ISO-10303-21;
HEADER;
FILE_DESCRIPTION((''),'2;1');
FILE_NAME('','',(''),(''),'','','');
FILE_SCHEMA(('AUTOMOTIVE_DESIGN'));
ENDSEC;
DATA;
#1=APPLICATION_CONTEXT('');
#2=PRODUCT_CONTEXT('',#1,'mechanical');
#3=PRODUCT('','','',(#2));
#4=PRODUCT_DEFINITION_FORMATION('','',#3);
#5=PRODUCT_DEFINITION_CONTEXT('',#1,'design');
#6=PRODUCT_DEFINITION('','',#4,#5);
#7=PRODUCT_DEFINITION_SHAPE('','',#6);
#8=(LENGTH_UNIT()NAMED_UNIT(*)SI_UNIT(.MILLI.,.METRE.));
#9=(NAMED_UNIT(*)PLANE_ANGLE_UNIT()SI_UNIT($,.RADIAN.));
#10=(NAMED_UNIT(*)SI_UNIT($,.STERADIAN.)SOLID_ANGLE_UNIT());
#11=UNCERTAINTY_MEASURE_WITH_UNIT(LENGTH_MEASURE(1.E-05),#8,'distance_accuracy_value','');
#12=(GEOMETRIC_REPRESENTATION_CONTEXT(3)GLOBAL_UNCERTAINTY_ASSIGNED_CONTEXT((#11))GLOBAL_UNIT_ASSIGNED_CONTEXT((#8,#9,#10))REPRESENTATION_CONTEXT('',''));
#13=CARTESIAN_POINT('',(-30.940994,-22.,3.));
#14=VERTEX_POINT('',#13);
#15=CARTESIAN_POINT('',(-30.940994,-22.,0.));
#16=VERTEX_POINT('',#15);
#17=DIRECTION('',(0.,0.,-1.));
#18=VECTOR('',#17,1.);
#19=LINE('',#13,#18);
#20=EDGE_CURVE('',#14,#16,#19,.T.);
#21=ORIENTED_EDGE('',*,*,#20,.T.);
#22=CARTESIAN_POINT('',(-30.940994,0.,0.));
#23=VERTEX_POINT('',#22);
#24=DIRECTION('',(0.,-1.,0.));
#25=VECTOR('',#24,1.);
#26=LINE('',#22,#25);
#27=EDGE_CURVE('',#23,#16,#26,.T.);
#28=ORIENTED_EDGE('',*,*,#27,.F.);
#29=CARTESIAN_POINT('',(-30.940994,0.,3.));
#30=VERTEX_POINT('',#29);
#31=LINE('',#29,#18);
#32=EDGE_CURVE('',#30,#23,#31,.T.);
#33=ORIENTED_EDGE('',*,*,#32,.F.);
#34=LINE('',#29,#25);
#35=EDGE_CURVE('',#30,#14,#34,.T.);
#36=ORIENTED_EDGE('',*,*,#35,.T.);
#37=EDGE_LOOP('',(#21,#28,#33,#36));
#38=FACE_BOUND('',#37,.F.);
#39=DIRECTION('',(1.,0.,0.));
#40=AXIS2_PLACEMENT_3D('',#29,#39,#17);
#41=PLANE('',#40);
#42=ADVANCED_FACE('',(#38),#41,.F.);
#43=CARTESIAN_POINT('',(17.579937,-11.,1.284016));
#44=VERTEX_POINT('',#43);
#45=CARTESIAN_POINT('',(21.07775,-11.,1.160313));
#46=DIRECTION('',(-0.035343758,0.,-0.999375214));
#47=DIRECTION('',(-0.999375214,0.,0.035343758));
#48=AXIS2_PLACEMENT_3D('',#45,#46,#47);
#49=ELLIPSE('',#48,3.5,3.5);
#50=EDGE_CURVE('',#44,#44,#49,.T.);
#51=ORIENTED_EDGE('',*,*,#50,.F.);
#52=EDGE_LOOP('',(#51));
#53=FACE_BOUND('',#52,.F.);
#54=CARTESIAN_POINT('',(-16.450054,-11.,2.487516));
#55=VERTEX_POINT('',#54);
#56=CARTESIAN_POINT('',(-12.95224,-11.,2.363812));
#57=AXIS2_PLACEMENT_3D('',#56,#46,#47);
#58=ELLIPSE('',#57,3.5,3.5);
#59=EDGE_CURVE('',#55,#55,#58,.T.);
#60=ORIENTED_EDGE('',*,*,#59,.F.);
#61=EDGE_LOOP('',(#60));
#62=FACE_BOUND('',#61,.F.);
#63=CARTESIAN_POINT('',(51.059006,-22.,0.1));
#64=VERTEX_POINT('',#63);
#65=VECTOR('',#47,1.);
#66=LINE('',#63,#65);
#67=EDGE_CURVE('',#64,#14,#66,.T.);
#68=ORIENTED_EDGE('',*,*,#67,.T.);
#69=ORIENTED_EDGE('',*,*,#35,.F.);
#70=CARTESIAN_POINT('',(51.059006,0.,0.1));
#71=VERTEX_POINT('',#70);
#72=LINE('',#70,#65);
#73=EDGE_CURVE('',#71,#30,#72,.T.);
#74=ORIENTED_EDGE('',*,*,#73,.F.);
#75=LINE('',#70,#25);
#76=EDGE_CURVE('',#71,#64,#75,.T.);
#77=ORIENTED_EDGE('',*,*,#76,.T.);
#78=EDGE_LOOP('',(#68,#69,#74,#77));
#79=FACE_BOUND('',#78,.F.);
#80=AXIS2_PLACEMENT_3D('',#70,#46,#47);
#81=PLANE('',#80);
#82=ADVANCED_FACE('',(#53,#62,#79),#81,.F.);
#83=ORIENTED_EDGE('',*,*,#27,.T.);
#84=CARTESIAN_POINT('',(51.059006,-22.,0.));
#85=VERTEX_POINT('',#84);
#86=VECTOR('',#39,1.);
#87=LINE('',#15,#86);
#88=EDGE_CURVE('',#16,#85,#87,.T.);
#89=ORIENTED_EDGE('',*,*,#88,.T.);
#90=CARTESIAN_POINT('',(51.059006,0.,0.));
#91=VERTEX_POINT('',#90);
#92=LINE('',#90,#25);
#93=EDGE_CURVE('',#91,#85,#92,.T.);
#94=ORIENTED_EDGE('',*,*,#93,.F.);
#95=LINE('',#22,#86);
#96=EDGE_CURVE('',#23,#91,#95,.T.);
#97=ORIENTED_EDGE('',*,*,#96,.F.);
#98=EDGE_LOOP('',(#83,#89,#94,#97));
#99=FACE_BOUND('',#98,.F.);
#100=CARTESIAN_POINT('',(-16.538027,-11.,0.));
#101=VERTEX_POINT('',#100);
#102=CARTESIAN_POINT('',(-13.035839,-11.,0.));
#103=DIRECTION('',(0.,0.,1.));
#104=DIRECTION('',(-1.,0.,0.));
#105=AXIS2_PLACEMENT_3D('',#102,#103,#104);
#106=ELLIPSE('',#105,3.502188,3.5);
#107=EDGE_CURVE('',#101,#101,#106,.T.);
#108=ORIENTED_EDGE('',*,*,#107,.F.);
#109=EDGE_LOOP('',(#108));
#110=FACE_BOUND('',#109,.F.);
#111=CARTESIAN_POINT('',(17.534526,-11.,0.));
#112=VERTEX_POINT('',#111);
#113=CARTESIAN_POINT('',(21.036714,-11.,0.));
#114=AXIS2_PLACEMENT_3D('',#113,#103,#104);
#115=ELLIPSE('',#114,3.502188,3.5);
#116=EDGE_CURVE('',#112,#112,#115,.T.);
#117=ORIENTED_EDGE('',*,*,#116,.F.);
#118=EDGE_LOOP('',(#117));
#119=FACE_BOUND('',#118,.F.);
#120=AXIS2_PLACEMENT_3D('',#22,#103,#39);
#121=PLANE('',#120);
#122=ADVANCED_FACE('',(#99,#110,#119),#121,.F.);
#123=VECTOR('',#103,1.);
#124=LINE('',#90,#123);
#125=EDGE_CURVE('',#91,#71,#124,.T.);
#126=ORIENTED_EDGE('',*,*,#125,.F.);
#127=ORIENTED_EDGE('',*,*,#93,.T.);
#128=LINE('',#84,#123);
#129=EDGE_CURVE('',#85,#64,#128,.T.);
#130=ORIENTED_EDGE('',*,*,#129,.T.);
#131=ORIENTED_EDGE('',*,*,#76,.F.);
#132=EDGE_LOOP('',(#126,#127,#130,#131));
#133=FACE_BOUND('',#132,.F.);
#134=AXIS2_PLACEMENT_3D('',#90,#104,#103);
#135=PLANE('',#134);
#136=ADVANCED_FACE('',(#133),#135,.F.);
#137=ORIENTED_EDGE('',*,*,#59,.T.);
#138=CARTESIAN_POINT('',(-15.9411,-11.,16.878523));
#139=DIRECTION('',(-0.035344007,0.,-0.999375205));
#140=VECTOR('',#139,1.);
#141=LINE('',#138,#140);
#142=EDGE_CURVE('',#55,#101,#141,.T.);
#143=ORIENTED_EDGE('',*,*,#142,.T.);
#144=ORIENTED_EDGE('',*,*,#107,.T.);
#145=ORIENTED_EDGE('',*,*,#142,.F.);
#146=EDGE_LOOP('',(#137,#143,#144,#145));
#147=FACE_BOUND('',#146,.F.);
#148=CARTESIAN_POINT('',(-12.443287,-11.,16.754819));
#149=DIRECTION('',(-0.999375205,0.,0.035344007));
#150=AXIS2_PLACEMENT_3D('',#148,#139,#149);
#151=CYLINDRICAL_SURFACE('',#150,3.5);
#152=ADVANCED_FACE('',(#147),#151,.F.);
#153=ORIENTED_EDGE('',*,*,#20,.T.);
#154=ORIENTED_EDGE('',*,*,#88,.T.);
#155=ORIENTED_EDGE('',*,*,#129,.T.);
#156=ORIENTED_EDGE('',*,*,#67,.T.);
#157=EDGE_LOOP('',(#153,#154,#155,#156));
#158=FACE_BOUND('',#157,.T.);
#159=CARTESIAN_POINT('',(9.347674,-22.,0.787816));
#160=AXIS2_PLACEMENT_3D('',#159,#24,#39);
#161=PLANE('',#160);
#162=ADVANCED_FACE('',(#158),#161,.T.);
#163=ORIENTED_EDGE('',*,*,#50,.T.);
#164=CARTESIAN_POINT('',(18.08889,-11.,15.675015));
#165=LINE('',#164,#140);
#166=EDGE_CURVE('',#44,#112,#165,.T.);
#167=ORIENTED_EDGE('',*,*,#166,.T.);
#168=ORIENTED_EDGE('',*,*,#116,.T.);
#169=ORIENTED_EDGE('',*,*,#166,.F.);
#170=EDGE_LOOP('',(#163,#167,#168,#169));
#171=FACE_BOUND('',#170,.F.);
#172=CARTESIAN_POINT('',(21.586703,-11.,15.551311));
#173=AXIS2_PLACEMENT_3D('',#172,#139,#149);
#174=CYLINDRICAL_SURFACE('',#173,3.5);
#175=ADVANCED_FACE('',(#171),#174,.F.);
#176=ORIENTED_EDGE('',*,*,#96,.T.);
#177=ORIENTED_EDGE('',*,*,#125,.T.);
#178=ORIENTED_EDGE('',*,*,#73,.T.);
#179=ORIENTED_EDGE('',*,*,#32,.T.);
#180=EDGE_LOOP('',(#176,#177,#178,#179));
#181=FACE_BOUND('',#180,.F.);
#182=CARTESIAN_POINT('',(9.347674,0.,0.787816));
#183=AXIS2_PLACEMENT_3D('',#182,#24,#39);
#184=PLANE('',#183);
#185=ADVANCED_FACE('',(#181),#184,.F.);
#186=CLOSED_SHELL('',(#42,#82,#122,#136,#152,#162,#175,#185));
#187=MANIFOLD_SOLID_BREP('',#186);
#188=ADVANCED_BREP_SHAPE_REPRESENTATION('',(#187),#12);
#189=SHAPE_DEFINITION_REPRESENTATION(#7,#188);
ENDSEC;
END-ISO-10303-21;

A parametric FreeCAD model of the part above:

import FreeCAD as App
import Part
import Sketcher
from FreeCAD import Vector

doc = App.newDocument("Part")
params = doc.addObject("Spreadsheet::Sheet", "Params")
for row, (alias, value) in enumerate([
    ("sketch1_width", "82 mm"),
    ("sketch1_height", "3 mm"),
    ("sketch1_height2", "0.1 mm"),
    ("pad1_length", "22 mm"),
    ("sketch2_diameter", "7 mm"),
    ("hole_diameter", "7 mm"),
    ("hole_depth", "14.4 mm"),
], start=1):
    params.set(f"A{row}", alias)
    params.set(f"B{row}", "=" + value)
    params.setAlias(f"B{row}", alias)

body = doc.addObject("PartDesign::Body", "Body")

# Sketch on XZ plane
sketch1 = body.newObject("Sketcher::SketchObject", "Sketch")
sketch1.AttachmentSupport = (doc.getObject("XZ_Plane"), [""])
sketch1.MapMode = "FlatFace"
sketch1.addGeometry([
    Part.LineSegment(Vector(-30.94, 3, 0), Vector(-30.94, 0, 0)),
    Part.LineSegment(Vector(-30.94, 0, 0), Vector(51.06, 0, 0)),
    Part.LineSegment(Vector(51.06, 0, 0), Vector(51.06, 0.1, 0)),
    Part.LineSegment(Vector(51.06, 0.1, 0), Vector(-30.94, 3, 0)),
], False)
sketch1.addConstraint([
    Sketcher.Constraint("Coincident", 0, 2, 1, 1),
    Sketcher.Constraint("Coincident", 1, 2, 2, 1),
    Sketcher.Constraint("Coincident", 2, 2, 3, 1),
    Sketcher.Constraint("Coincident", 3, 2, 0, 1),
    Sketcher.Constraint("Vertical", 0),
    Sketcher.Constraint("Horizontal", 1),
    Sketcher.Constraint("Vertical", 2),
    Sketcher.Constraint("PointOnObject", 0, 2, -1),
    Sketcher.Constraint("DistanceX", 1, 1, 1, 2, 82.0),
    Sketcher.Constraint("DistanceY", 0, 2, 0, 1, 3.0),
    Sketcher.Constraint("DistanceY", 2, 1, 2, 2, 0.1),
    Sketcher.Constraint("DistanceX", 0, 2, -1, 1, 30.940994),
])
sketch1.setExpression("Constraints[8]", "Params.sketch1_width")
sketch1.setExpression("Constraints[9]", "Params.sketch1_height")
sketch1.setExpression("Constraints[10]", "Params.sketch1_height2")
pad1 = body.newObject("PartDesign::Pad", "Pad")
pad1.Profile = sketch1
pad1.setExpression("Length", "Params.pad1_length")

# Sketch on an angled plane
sketch2 = body.newObject("Sketcher::SketchObject", "Sketch001")
sketch2.Placement = App.Placement(Vector(0.067315, 0, 1.903365), App.Rotation(Vector(0.999375205, 0, -0.035344007), Vector(0, 0.999999999, 0), Vector(0.035344007, 0, 0.999375205), "ZXY"))
sketch2.addGeometry([
    Part.Circle(Vector(-13, -11, 0), Vector(0, 0, 1), 3.5),
    Part.Circle(Vector(21, -11, 0), Vector(0, 0, 1), 3.5),
], False)
sketch2.addConstraint([
    Sketcher.Constraint("Equal", 0, 1),
    Sketcher.Constraint("Horizontal", 0, 3, 1, 3),
    Sketcher.Constraint("Diameter", 0, 7.0),
    Sketcher.Constraint("DistanceY", 0, 3, -1, 1, 11.0),
    Sketcher.Constraint("DistanceX", -1, 1, 1, 3, 21.02357),
    Sketcher.Constraint("DistanceX", 0, 3, -1, 1, 13.027695),
])
sketch2.setExpression("Constraints[2]", "Params.sketch2_diameter")
doc.recompute()
hole = body.newObject("PartDesign::Hole", "Hole")
hole.Profile = sketch2
hole.ThreadType = "None"
hole.setExpression("Diameter", "Params.hole_diameter")
hole.DepthType = "Dimension"
hole.setExpression("Depth", "Params.hole_depth")
hole.DrillPoint = "Flat"

doc.recompute()
